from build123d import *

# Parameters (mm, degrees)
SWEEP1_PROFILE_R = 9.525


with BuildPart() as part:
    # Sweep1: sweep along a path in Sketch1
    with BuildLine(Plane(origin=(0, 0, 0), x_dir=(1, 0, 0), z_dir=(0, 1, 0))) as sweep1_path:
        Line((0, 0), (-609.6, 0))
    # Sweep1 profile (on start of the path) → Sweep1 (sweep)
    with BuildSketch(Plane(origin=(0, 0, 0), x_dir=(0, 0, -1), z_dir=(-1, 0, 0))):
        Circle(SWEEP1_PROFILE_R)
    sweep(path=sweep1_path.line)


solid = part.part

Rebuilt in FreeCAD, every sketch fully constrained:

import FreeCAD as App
import Part
import Sketcher
Q = App.Units.Quantity

doc = App.newDocument("Part")
params = doc.addObject("Spreadsheet::Sheet", "Params")
for row, (alias, value) in enumerate([
    ("sketch1_diameter", "0.75 in"),
    ("sketch2_width", "24 in"),
], start=1):
    params.set(f"A{row}", alias)
    params.set(f"B{row}", "=" + value)
    params.setAlias(f"B{row}", alias)

body = doc.addObject("PartDesign::Body", "Body")

# Sketch on YZ plane
sketch1 = body.newObject("Sketcher::SketchObject", "Sketch")
sketch1.AttachmentSupport = (doc.getObject("YZ_Plane"), [""])
sketch1.MapMode = "FlatFace"
sketch1.addGeometry(Part.Circle(App.Vector(0, 0, 0), App.Vector(0, 0, 1), 10), False)
sketch1.addConstraint([
    Sketcher.Constraint("Coincident", 0, 3, -1, 1),
    Sketcher.Constraint("Diameter", 0, Q("0.75 in")),
])
sketch1.setExpression("Constraints[1]", "Params.sketch1_diameter")

# Sketch on XY plane
sketch2 = body.newObject("Sketcher::SketchObject", "Sketch001")
sketch2.AttachmentSupport = (doc.getObject("XY_Plane"), [""])
sketch2.MapMode = "FlatFace"
sketch2.addGeometry(Part.LineSegment(App.Vector(0, 0, 0), App.Vector(-610, 0, 0)), False)
sketch2.addConstraint([
    Sketcher.Constraint("Horizontal", 0),
    Sketcher.Constraint("Coincident", 0, 1, -1, 1),
    Sketcher.Constraint("DistanceX", 0, 2, 0, 1, Q("24 in")),
])
sketch2.setExpression("Constraints[2]", "Params.sketch2_width")
doc.recompute()

additivepipe = body.newObject("PartDesign::AdditivePipe", "AdditivePipe")
additivepipe.Profile = sketch1
additivepipe.Spine = (sketch2, ["Edge1"])

doc.recompute()
